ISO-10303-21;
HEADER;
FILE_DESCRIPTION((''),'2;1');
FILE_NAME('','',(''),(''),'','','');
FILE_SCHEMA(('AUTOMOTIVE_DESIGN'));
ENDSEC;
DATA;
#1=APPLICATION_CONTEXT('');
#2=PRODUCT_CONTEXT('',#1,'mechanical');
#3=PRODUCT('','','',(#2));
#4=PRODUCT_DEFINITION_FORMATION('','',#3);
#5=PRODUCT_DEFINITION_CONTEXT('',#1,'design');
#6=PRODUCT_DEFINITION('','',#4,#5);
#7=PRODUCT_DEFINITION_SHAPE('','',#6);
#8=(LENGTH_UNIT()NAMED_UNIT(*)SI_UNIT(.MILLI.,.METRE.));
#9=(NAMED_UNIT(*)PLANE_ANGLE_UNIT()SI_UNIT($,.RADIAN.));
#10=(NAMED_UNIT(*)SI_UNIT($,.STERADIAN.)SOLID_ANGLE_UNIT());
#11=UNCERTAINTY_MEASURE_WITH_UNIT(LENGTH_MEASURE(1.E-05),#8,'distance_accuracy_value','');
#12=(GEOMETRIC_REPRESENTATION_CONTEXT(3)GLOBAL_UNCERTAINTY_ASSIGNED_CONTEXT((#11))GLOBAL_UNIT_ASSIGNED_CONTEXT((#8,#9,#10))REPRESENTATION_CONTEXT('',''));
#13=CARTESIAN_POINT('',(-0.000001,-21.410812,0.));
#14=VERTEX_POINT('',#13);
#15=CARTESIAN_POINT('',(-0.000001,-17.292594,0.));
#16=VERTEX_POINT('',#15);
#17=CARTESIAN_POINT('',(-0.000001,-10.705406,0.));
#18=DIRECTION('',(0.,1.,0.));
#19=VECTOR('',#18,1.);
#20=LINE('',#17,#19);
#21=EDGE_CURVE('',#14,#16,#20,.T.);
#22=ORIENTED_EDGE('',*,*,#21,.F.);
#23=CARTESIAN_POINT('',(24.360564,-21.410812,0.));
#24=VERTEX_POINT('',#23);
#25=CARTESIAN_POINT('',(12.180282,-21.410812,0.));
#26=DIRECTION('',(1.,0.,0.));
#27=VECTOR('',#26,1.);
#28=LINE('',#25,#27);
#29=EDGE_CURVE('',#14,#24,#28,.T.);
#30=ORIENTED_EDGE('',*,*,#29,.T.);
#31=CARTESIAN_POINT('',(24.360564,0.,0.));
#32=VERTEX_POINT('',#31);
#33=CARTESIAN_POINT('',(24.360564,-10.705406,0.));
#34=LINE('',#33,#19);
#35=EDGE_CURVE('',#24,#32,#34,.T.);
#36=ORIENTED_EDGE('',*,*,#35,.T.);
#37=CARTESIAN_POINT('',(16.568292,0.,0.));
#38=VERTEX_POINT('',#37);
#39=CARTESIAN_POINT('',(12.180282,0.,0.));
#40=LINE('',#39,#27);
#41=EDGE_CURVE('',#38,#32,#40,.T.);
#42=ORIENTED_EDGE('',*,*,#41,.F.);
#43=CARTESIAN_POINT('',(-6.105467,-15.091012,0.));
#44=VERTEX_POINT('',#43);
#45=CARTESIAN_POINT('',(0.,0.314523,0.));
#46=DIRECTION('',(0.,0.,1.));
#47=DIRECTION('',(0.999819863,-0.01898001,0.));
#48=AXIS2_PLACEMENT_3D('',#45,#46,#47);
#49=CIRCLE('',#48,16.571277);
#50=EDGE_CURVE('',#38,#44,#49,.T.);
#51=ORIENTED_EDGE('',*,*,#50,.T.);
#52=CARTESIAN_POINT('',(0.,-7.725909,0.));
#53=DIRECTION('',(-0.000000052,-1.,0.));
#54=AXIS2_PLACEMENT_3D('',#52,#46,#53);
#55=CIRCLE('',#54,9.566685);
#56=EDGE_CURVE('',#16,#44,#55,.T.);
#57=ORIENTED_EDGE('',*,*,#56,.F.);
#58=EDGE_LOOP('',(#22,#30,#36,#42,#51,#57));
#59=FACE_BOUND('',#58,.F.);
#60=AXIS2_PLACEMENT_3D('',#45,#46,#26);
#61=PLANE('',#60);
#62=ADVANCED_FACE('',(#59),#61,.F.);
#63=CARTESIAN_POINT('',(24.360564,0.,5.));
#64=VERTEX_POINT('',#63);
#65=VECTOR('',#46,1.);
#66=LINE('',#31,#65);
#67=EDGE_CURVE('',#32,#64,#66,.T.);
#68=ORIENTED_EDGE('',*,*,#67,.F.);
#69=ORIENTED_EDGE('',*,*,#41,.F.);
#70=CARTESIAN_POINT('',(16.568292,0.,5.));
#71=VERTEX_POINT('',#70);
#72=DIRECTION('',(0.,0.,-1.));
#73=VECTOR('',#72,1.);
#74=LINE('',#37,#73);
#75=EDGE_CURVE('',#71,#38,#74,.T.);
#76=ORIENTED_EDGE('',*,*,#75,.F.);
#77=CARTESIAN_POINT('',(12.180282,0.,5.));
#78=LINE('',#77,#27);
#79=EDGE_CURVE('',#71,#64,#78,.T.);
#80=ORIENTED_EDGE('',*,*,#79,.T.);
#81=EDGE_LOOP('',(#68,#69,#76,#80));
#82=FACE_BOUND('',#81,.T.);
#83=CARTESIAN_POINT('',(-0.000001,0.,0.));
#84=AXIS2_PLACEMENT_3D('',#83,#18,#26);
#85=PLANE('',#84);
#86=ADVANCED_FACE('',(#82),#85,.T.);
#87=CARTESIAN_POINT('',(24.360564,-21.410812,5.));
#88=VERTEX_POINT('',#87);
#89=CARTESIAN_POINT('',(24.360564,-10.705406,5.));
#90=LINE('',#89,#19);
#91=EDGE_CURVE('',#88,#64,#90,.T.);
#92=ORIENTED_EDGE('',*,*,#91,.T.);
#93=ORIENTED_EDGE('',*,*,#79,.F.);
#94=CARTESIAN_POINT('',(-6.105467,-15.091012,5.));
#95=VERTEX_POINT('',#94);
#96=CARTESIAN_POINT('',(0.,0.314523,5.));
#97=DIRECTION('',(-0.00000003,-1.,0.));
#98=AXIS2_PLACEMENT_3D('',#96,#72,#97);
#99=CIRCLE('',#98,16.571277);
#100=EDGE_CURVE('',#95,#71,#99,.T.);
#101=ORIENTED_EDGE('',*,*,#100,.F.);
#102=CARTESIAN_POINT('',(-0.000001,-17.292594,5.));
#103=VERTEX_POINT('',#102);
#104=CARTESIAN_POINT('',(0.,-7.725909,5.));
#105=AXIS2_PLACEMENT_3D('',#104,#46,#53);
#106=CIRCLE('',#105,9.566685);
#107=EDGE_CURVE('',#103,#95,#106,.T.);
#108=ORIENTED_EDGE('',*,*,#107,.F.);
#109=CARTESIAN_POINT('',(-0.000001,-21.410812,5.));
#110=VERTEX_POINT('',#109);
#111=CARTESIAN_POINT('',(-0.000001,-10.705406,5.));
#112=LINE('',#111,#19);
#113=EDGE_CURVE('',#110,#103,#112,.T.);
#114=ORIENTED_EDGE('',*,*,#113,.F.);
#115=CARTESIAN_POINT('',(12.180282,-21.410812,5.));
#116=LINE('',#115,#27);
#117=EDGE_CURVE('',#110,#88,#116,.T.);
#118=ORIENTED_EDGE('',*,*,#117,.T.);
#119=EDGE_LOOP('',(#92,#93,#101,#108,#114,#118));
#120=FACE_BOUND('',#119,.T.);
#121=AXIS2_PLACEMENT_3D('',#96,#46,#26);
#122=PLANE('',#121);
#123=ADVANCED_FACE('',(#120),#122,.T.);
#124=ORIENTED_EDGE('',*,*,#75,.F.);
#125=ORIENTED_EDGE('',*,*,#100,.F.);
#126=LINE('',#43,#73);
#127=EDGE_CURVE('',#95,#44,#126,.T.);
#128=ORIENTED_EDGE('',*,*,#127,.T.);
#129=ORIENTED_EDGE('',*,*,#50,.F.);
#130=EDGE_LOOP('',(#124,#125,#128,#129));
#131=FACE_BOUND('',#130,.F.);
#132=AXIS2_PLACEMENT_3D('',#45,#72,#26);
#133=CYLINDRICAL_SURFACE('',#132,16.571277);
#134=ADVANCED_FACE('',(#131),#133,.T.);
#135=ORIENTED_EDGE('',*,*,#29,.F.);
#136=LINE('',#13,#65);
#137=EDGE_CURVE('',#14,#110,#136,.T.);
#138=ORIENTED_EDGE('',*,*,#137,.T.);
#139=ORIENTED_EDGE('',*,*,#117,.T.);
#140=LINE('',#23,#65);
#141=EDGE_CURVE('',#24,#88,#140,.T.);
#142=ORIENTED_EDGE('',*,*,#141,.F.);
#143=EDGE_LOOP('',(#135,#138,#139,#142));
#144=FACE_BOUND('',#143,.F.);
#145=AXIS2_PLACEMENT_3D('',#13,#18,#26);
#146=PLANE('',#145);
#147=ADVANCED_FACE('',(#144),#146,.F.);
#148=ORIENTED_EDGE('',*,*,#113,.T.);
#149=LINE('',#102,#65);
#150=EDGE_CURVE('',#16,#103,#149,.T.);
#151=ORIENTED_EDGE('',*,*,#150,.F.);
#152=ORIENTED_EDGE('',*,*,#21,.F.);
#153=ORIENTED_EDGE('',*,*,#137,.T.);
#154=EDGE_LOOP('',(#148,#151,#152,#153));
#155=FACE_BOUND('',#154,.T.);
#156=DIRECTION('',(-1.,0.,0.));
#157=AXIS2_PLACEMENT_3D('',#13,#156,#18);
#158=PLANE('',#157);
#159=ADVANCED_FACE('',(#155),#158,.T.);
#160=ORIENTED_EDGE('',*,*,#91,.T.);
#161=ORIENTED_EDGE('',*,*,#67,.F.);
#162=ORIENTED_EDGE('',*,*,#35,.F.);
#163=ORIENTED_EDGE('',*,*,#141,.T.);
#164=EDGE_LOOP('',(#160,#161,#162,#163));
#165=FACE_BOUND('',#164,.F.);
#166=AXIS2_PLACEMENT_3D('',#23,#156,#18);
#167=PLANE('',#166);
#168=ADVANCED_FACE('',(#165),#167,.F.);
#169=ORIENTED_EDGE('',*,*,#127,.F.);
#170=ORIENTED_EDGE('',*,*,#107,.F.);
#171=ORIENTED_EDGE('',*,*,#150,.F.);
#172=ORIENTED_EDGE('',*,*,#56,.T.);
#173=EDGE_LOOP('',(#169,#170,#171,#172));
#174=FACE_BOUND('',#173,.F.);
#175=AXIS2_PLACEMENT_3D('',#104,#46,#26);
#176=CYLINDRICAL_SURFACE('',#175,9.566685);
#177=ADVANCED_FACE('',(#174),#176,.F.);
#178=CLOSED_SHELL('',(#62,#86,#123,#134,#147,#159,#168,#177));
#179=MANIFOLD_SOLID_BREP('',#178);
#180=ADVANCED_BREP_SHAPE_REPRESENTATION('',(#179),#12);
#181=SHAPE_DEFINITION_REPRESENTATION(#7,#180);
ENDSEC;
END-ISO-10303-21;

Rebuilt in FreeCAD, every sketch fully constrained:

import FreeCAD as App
import Part
import Sketcher
from FreeCAD import Vector
Q = App.Units.Quantity

doc = App.newDocument("Part")
body = doc.addObject("PartDesign::Body", "Body")

# Sketch on XY plane
sketch1 = doc.addObject("Sketcher::SketchObject", "Sketch")
body.addObject(sketch1)
sketch1.AttachmentSupport = (doc.XY_Plane, [""])
sketch1.MapMode = "FlatFace"
sketch1.addGeometry([
    Part.LineSegment(Vector(0, 0, 0), Vector(0, -21.410812, 0)),
    Part.LineSegment(Vector(0, -21.410812, 0), Vector(24.360564, -21.410812, 0)),
    Part.LineSegment(Vector(24.360564, -21.410812, 0), Vector(24.360564, 0, 0)),
    Part.LineSegment(Vector(24.360564, 0, 0), Vector(0, 0, 0)),
], False)
sketch1.addConstraint([
    Sketcher.Constraint("Coincident", 0, 2, 1, 1),
    Sketcher.Constraint("Coincident", 1, 2, 2, 1),
    Sketcher.Constraint("Coincident", 2, 2, 3, 1),
    Sketcher.Constraint("Coincident", 3, 2, 0, 1),
    Sketcher.Constraint("Vertical", 0),
    Sketcher.Constraint("Horizontal", 1),
    Sketcher.Constraint("Vertical", 2),
    Sketcher.Constraint("Horizontal", 3),
    Sketcher.Constraint("Coincident", 3, 2, -1, 1),
    Sketcher.Constraint("DistanceY", 0, 2, 0, 1, Q("21.410812 mm")),
    Sketcher.Constraint("DistanceX", 1, 1, 1, 2, Q("24.360565 mm")),
])
pad1 = doc.addObject("PartDesign::Pad", "Pad")
body.addObject(pad1)
pad1.Profile = sketch1
pad1.Length = 5

# Sketch on XY plane
sketch2 = doc.addObject("Sketcher::SketchObject", "Sketch001")
body.addObject(sketch2)
sketch2.AttachmentSupport = (doc.XY_Plane, [""])
sketch2.MapMode = "FlatFace"
sketch2.addGeometry(Part.Circle(Vector(0, 0.314523, 0), Vector(0, 0, 1), 16.571277), False)
sketch2.addConstraint([
    Sketcher.Constraint("PointOnObject", 0, 3, -2),
    Sketcher.Constraint("Diameter", 0, Q("33.142554 mm")),
    Sketcher.Constraint("DistanceY", -1, 1, 0, 3, Q("0.314523 mm")),
])
pad2 = doc.addObject("PartDesign::Pad", "Pad001")
body.addObject(pad2)
pad2.Profile = sketch2
pad2.Length = 5

# Sketch on XY plane
sketch3 = doc.addObject("Sketcher::SketchObject", "Sketch002")
body.addObject(sketch3)
sketch3.AttachmentSupport = (doc.XY_Plane, [""])
sketch3.MapMode = "FlatFace"
sketch3.AttachmentOffset = App.Placement(Vector(0, 0, 5), App.Rotation())
sketch3.addGeometry(Part.Circle(Vector(0, -7.725909, 0), Vector(0, 0, 1), 9.566685), False)
sketch3.addConstraint([
    Sketcher.Constraint("PointOnObject", 0, 3, -2),
    Sketcher.Constraint("Diameter", 0, Q("19.13337 mm")),
    Sketcher.Constraint("DistanceY", 0, 3, -1, 1, Q("7.725909 mm")),
])
pocket1 = doc.addObject("PartDesign::Pocket", "Pocket")
body.addObject(pocket1)
pocket1.Profile = sketch3
pocket1.Length = 6

doc.recompute()
